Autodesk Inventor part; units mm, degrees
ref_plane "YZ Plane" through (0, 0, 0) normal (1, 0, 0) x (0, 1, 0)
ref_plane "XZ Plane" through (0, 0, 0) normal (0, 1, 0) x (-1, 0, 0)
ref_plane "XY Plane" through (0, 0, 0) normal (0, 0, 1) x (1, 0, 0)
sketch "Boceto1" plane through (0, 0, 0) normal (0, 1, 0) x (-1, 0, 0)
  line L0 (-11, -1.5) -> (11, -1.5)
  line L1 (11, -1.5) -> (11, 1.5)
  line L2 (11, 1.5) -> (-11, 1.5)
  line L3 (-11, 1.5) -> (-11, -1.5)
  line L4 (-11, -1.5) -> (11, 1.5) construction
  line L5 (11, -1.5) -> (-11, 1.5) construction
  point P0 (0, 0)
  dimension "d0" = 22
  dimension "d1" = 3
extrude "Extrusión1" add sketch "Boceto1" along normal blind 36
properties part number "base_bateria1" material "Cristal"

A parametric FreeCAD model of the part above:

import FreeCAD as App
import Part
import Sketcher
from FreeCAD import Vector
Q = App.Units.Quantity


def add_polygon(sketch, points):
    """Adds a closed chain of lines whose ends are joined by coincident constraints."""
    first, n = sketch.GeometryCount, len(points)
    for a, b in zip(points, points[1:] + points[:1]):
        sketch.addGeometry(Part.LineSegment(App.Vector(*a, 0), App.Vector(*b, 0)), False)
    for i in range(n):
        sketch.addConstraint(Sketcher.Constraint("Coincident", first + i, 2, first + (i + 1) % n, 1))

doc = App.newDocument("Part")
body = doc.addObject("PartDesign::Body", "Body")

sketch1 = body.newObject("Sketcher::SketchObject", "Sketch")
sketch1.AttachmentSupport = (doc.getObject("XZ_Plane"), [""])
sketch1.MapMode = "FlatFace"
add_polygon(sketch1, [(11, 1.5), (11, -1.5), (-11, -1.5), (-11, 1.5)])
sketch1.addConstraint([
    Sketcher.Constraint("Vertical", 0),
    Sketcher.Constraint("Horizontal", 1),
    Sketcher.Constraint("Vertical", 2),
    Sketcher.Constraint("Horizontal", 3),
    Sketcher.Constraint("Symmetric", 0, 2, 2, 2, -1, 1),
    Sketcher.Constraint("DistanceX", 1, 2, 1, 1, Q("22 mm")),
    Sketcher.Constraint("DistanceY", 0, 2, 0, 1, Q("3 mm")),
])
pad1 = body.newObject("PartDesign::Pad", "Pad")
pad1.Profile = sketch1
pad1.Length = 36
pad1.Reversed = True

doc.recompute()
